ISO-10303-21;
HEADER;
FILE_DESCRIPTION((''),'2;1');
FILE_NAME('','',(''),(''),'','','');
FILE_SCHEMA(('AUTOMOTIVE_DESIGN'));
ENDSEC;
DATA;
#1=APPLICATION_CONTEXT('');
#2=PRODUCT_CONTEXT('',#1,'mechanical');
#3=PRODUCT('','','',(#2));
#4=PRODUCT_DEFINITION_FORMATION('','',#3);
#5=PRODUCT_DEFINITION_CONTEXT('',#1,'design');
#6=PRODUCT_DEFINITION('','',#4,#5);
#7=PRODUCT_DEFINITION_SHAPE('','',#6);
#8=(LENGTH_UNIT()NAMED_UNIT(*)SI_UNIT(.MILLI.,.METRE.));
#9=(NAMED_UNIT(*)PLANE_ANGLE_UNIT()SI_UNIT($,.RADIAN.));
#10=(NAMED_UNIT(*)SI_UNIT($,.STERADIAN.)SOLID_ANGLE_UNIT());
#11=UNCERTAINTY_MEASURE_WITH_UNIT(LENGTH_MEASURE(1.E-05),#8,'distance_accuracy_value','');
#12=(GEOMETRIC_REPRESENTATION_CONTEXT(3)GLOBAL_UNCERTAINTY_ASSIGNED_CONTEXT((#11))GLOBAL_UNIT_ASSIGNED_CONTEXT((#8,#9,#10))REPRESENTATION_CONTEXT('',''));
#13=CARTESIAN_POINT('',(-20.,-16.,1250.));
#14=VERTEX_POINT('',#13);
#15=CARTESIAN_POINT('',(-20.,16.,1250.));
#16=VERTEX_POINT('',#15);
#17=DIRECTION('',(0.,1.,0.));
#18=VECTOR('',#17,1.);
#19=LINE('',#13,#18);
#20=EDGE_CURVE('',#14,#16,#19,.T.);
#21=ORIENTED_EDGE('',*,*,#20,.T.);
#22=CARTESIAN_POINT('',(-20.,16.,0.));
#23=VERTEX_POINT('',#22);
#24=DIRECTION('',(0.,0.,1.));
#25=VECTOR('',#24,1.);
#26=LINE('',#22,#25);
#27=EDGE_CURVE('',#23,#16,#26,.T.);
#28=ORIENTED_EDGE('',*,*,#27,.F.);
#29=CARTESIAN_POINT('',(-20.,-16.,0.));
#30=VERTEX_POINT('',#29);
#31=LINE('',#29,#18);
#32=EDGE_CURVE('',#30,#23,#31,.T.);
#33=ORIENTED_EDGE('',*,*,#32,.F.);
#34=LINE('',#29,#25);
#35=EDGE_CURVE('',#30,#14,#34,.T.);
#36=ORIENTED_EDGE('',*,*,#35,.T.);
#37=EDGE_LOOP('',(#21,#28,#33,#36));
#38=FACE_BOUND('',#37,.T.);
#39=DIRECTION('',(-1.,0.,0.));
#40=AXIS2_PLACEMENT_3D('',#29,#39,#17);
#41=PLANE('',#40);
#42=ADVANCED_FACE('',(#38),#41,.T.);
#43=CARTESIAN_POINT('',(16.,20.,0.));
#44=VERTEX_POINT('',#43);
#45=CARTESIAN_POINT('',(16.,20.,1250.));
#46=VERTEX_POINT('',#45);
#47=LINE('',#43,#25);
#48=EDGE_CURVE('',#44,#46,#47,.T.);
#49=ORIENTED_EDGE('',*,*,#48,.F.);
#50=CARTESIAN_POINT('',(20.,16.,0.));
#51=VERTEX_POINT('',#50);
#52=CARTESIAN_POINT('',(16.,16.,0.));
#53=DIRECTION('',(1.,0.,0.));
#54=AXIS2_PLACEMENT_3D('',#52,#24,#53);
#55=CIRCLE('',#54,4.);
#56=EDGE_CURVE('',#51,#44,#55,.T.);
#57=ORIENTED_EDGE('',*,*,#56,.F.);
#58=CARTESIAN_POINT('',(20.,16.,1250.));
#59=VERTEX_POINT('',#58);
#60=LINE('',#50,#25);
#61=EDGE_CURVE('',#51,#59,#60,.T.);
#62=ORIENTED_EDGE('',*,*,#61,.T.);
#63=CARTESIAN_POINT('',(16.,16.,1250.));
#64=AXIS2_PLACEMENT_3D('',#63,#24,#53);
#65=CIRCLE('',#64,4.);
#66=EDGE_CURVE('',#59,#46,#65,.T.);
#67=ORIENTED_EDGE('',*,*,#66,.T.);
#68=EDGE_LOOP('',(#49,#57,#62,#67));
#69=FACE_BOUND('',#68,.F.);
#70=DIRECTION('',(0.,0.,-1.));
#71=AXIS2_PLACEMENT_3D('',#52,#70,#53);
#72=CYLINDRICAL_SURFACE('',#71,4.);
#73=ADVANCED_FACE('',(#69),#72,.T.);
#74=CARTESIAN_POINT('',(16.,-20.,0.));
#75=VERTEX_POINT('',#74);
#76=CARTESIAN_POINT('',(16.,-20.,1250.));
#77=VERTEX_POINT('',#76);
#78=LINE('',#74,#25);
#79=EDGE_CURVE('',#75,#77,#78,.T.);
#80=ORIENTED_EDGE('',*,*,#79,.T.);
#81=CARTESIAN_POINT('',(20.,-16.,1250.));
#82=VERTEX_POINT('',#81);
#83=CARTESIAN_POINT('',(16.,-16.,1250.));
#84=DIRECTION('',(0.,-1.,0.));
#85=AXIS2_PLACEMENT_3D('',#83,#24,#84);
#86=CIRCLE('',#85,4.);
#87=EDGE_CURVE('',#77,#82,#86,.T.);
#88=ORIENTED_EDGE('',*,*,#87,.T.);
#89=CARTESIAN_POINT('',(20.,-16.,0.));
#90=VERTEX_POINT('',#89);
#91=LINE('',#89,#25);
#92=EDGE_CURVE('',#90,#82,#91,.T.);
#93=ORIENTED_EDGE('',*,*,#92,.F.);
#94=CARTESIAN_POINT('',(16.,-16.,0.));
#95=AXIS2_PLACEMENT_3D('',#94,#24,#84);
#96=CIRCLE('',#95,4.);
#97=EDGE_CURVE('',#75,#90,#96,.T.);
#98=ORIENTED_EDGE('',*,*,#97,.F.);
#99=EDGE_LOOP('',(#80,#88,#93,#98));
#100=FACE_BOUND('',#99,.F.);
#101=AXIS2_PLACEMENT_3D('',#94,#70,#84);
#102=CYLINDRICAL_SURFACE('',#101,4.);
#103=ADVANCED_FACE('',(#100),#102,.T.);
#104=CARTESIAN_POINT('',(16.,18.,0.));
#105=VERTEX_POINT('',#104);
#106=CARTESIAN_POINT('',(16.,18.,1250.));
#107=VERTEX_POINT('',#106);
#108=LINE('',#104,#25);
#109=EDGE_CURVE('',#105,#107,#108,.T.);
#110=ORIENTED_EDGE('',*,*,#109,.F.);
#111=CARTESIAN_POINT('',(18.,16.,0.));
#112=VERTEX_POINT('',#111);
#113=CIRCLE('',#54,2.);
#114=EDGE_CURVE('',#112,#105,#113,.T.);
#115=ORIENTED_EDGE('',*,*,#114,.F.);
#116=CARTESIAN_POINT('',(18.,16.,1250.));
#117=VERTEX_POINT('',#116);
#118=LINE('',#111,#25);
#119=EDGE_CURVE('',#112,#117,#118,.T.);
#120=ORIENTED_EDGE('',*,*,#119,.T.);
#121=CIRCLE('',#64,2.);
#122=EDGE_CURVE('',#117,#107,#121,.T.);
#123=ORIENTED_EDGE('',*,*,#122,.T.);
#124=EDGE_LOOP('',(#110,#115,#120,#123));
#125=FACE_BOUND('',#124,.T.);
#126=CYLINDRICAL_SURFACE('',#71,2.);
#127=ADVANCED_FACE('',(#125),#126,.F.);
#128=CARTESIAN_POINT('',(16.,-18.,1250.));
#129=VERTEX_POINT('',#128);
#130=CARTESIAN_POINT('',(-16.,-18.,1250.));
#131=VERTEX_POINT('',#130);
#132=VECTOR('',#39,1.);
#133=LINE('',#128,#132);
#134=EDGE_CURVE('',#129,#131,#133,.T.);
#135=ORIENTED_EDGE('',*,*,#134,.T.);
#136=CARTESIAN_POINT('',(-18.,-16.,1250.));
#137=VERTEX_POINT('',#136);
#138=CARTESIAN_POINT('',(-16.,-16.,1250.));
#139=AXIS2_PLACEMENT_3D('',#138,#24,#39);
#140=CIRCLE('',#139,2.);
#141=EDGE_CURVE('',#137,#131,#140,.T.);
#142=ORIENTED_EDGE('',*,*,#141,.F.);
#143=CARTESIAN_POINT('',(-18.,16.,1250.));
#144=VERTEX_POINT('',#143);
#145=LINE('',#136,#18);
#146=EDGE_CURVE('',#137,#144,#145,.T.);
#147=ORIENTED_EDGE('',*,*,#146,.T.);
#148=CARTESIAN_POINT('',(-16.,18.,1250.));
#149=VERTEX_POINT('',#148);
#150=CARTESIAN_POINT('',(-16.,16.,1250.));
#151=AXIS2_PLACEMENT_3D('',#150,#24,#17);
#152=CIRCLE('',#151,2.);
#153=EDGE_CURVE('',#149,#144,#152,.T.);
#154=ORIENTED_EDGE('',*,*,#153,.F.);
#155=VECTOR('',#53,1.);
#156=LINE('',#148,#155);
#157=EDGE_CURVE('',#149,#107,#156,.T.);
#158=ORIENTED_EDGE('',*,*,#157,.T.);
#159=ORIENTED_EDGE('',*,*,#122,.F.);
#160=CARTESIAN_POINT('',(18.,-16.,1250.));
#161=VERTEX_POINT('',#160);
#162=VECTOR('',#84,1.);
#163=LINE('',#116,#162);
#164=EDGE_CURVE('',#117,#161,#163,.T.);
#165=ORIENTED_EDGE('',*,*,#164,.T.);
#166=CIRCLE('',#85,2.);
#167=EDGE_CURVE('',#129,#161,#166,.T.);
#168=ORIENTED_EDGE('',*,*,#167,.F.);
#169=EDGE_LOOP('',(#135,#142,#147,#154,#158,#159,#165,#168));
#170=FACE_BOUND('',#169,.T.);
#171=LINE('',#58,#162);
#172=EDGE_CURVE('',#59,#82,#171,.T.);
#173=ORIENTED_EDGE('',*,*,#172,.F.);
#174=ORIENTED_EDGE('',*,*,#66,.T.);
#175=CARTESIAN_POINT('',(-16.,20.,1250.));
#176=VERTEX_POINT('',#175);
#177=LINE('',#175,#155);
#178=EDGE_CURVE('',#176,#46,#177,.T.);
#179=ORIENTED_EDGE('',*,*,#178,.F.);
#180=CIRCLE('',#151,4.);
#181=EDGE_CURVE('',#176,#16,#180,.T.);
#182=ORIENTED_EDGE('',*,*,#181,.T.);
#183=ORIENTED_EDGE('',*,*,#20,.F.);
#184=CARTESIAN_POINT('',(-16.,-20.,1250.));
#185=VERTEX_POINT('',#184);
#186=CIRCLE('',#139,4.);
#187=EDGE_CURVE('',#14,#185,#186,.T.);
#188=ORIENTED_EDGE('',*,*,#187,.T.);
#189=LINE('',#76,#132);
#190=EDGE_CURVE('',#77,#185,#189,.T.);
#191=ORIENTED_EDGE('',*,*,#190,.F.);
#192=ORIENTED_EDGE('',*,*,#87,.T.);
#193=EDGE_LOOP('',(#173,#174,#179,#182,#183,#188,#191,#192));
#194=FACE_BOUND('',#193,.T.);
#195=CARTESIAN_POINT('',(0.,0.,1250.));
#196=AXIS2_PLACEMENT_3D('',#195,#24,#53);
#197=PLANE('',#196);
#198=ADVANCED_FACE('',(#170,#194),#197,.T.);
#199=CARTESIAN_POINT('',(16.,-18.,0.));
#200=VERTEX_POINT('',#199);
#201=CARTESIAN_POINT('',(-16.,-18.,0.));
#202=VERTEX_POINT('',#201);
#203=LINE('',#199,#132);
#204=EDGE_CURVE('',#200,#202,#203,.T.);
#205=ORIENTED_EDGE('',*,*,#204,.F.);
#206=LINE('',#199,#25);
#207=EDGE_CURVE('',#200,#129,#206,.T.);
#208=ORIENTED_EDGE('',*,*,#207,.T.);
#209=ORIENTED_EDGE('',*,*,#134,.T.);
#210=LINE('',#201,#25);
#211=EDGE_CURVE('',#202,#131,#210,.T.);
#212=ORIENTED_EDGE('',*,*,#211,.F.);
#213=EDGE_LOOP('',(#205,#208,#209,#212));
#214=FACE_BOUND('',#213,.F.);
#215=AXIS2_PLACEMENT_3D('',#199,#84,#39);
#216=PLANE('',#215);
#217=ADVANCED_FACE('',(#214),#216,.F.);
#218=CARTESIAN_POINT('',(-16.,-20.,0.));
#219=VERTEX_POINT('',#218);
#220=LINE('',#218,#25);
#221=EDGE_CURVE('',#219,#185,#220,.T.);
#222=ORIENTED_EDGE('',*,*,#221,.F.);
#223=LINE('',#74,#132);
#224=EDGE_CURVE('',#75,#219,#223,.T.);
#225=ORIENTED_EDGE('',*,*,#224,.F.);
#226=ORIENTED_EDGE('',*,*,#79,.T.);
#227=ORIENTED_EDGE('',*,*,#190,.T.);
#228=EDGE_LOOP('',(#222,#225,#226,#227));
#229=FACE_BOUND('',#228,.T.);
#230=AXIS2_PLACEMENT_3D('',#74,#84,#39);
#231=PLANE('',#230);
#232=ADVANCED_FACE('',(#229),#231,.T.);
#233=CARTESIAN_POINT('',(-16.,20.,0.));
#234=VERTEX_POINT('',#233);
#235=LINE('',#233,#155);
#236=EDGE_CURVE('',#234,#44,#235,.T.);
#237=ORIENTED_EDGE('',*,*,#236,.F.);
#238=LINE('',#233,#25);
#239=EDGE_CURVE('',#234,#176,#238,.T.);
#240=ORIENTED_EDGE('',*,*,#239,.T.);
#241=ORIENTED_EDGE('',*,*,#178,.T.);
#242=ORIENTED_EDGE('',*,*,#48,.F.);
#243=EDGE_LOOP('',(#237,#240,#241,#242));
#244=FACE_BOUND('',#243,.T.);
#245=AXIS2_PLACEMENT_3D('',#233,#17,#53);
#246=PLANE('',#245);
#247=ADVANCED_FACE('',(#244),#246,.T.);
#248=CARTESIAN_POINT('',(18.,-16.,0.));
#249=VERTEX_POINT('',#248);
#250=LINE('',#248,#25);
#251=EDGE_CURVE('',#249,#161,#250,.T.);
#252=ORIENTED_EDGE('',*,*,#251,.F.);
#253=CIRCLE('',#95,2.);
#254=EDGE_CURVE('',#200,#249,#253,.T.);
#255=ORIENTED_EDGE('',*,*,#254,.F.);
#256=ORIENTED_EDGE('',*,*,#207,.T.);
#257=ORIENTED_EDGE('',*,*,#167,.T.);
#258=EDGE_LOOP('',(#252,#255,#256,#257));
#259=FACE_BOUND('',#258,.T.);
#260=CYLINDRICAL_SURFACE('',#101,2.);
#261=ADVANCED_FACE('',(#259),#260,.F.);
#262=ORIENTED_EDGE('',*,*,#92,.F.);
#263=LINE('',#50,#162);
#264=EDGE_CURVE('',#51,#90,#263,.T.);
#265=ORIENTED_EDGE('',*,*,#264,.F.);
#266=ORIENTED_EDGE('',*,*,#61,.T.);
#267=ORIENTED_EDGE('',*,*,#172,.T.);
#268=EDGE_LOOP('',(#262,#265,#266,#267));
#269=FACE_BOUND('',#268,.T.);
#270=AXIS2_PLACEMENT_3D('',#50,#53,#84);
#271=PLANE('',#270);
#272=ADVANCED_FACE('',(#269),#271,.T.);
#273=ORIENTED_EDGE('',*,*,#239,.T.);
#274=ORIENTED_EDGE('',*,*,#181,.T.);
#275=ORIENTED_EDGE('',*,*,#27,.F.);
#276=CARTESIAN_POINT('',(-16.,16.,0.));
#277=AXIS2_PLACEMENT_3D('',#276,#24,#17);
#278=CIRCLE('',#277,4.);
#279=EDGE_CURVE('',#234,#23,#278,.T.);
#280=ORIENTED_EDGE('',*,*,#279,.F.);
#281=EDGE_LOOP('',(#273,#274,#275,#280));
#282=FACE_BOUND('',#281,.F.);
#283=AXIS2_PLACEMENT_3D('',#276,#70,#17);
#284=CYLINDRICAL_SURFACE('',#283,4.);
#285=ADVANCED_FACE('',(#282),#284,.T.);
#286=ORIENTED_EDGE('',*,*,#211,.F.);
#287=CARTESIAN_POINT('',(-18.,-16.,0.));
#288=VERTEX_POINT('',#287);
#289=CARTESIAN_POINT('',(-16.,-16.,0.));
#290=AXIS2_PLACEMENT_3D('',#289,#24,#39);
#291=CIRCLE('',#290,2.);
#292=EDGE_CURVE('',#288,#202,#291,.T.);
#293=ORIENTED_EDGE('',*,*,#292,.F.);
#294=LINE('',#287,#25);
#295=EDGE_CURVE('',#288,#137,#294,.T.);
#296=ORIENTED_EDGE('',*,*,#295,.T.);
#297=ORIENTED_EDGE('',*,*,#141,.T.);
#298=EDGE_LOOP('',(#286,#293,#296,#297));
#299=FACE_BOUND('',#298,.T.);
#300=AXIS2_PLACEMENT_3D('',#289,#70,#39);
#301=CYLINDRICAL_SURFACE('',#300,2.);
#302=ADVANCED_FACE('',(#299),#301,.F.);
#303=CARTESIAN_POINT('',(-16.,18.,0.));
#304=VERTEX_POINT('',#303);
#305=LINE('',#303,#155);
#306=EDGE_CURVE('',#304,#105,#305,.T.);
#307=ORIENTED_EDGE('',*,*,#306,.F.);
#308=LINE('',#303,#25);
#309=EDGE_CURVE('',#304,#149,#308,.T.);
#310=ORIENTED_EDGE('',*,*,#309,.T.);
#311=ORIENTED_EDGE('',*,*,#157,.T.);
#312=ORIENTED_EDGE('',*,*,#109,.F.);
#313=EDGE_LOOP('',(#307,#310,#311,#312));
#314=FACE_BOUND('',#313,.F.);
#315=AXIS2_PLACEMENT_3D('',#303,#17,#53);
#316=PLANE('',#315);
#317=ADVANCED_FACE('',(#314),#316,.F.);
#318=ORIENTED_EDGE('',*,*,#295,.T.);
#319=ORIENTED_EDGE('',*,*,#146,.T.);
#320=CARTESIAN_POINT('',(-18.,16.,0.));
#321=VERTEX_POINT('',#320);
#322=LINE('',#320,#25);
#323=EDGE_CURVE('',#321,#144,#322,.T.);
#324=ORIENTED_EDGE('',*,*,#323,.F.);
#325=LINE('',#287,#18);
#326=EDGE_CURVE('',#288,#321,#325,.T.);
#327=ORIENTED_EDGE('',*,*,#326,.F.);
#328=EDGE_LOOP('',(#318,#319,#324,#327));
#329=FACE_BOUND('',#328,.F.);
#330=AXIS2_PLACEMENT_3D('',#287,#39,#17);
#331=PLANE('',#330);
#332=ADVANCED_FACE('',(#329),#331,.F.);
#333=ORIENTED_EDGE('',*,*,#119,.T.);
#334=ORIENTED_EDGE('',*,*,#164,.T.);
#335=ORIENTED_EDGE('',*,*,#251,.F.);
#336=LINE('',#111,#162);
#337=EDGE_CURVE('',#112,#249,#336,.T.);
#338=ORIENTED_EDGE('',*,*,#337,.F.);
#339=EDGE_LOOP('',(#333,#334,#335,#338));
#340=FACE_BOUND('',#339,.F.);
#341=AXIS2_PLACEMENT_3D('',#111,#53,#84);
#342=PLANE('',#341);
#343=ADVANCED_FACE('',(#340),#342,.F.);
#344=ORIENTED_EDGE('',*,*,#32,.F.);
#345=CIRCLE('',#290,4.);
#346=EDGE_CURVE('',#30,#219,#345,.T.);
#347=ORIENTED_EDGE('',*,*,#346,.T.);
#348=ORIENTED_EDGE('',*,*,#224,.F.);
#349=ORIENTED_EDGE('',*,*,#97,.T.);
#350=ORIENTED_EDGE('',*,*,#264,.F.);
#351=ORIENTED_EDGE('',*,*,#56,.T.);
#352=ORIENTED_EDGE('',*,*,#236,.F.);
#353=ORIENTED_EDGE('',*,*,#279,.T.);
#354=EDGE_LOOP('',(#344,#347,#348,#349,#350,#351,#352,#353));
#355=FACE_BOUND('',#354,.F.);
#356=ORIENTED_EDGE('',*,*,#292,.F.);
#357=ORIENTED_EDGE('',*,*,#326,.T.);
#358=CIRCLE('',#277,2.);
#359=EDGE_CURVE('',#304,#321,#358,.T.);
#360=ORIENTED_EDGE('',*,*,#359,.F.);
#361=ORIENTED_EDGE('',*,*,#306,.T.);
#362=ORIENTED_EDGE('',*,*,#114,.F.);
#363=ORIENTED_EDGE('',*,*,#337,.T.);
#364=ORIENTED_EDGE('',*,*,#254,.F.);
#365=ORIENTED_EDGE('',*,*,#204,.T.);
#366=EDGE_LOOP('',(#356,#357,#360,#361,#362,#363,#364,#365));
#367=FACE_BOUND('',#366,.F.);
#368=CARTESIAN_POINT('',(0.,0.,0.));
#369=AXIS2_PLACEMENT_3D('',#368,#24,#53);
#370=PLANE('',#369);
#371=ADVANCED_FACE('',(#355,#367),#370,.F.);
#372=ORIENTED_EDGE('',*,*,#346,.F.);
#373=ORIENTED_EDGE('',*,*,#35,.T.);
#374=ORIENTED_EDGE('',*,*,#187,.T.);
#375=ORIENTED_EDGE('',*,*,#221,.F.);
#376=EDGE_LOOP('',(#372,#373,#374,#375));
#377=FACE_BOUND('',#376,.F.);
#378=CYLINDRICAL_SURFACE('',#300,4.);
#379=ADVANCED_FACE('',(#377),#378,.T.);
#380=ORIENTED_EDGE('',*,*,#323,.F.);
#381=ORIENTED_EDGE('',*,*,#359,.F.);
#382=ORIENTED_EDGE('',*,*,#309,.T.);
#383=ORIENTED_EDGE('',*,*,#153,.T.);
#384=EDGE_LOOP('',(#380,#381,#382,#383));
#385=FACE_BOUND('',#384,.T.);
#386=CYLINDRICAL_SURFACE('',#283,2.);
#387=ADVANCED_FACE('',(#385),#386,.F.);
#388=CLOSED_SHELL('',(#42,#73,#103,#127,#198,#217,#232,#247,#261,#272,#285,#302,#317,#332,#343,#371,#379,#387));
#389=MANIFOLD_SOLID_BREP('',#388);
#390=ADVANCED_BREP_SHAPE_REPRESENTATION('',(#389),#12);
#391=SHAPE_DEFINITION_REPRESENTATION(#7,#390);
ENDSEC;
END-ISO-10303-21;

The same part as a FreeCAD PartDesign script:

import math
import FreeCAD as App
import Part
import Sketcher

doc = App.newDocument("Part")
body = doc.addObject("PartDesign::Body", "Body")

sketch1 = body.newObject("Sketcher::SketchObject", "Sketch")
sketch1.AttachmentSupport = (doc.getObject("XY_Plane"), [""])
sketch1.MapMode = "FlatFace"
sketch1.addGeometry([
    Part.LineSegment(App.Vector(-20, 16, 0), App.Vector(-20, -16, 0)),
    Part.ArcOfCircle(Part.Circle(App.Vector(-16, -16, 0), App.Vector(0, 0, 1), 4), math.radians(180), math.radians(270)),
    Part.LineSegment(App.Vector(-16, -20, 0), App.Vector(16, -20, 0)),
    Part.ArcOfCircle(Part.Circle(App.Vector(16, -16, 0), App.Vector(0, 0, 1), 4), math.radians(-90), math.radians(0)),
    Part.LineSegment(App.Vector(20, -16, 0), App.Vector(20, 16, 0)),
    Part.ArcOfCircle(Part.Circle(App.Vector(16, 16, 0), App.Vector(0, 0, 1), 4), math.radians(0), math.radians(90)),
    Part.LineSegment(App.Vector(16, 20, 0), App.Vector(-16, 20, 0)),
    Part.ArcOfCircle(Part.Circle(App.Vector(-16, 16, 0), App.Vector(0, 0, 1), 4), math.radians(90), math.radians(180)),
    Part.ArcOfCircle(Part.Circle(App.Vector(-16, 16, 0), App.Vector(0, 0, 1), 2), math.radians(90), math.radians(180)),
    Part.LineSegment(App.Vector(-16, 18, 0), App.Vector(16, 18, 0)),
    Part.ArcOfCircle(Part.Circle(App.Vector(16, 16, 0), App.Vector(0, 0, 1), 2), math.radians(0), math.radians(90)),
    Part.LineSegment(App.Vector(18, 16, 0), App.Vector(18, -16, 0)),
    Part.ArcOfCircle(Part.Circle(App.Vector(16, -16, 0), App.Vector(0, 0, 1), 2), math.radians(-90), math.radians(0)),
    Part.LineSegment(App.Vector(16, -18, 0), App.Vector(-16, -18, 0)),
    Part.ArcOfCircle(Part.Circle(App.Vector(-16, -16, 0), App.Vector(0, 0, 1), 2), math.radians(180), math.radians(270)),
    Part.LineSegment(App.Vector(-18, -16, 0), App.Vector(-18, 16, 0)),
], False)
sketch1.addConstraint([
    Sketcher.Constraint("Tangent", 0, 2, 1, 1),
    Sketcher.Constraint("Tangent", 1, 2, 2, 1),
    Sketcher.Constraint("Tangent", 2, 2, 3, 1),
    Sketcher.Constraint("Tangent", 3, 2, 4, 1),
    Sketcher.Constraint("Tangent", 4, 2, 5, 1),
    Sketcher.Constraint("Tangent", 5, 2, 6, 1),
    Sketcher.Constraint("Tangent", 6, 2, 7, 1),
    Sketcher.Constraint("Tangent", 7, 2, 0, 1),
    Sketcher.Constraint("Tangent", 8, 1, 9, 1),
    Sketcher.Constraint("Tangent", 9, 2, 10, 2),
    Sketcher.Constraint("Tangent", 10, 1, 11, 1),
    Sketcher.Constraint("Tangent", 11, 2, 12, 2),
    Sketcher.Constraint("Tangent", 12, 1, 13, 1),
    Sketcher.Constraint("Tangent", 13, 2, 14, 2),
    Sketcher.Constraint("Tangent", 14, 1, 15, 1),
    Sketcher.Constraint("Tangent", 15, 2, 8, 2),
    Sketcher.Constraint("Vertical", 0),
    Sketcher.Constraint("Horizontal", 2),
    Sketcher.Constraint("Vertical", 4),
    Sketcher.Constraint("Horizontal", 6),
    Sketcher.Constraint("Horizontal", 9),
    Sketcher.Constraint("Vertical", 11),
    Sketcher.Constraint("Horizontal", 13),
    Sketcher.Constraint("Vertical", 15),
    Sketcher.Constraint("Coincident", 8, 3, 7, 3),
    Sketcher.Constraint("Coincident", 10, 3, 5, 3),
    Sketcher.Constraint("Coincident", 12, 3, 3, 3),
    Sketcher.Constraint("Equal", 1, 3),
    Sketcher.Constraint("Equal", 3, 5),
    Sketcher.Constraint("Equal", 5, 7),
    Sketcher.Constraint("Equal", 12, 14),
    Sketcher.Constraint("Symmetric", 1, 3, 5, 3, -1, 1),
    Sketcher.Constraint("Equal", 13, 0),
    Sketcher.Constraint("Radius", 1, 4.0),
    Sketcher.Constraint("Radius", 8, 2.0),
    Sketcher.Constraint("DistanceX", 0, 2, -1, 1, 20.0),
])
pad1 = body.newObject("PartDesign::Pad", "Pad")
pad1.Profile = sketch1
pad1.Length = 1250

doc.recompute()
